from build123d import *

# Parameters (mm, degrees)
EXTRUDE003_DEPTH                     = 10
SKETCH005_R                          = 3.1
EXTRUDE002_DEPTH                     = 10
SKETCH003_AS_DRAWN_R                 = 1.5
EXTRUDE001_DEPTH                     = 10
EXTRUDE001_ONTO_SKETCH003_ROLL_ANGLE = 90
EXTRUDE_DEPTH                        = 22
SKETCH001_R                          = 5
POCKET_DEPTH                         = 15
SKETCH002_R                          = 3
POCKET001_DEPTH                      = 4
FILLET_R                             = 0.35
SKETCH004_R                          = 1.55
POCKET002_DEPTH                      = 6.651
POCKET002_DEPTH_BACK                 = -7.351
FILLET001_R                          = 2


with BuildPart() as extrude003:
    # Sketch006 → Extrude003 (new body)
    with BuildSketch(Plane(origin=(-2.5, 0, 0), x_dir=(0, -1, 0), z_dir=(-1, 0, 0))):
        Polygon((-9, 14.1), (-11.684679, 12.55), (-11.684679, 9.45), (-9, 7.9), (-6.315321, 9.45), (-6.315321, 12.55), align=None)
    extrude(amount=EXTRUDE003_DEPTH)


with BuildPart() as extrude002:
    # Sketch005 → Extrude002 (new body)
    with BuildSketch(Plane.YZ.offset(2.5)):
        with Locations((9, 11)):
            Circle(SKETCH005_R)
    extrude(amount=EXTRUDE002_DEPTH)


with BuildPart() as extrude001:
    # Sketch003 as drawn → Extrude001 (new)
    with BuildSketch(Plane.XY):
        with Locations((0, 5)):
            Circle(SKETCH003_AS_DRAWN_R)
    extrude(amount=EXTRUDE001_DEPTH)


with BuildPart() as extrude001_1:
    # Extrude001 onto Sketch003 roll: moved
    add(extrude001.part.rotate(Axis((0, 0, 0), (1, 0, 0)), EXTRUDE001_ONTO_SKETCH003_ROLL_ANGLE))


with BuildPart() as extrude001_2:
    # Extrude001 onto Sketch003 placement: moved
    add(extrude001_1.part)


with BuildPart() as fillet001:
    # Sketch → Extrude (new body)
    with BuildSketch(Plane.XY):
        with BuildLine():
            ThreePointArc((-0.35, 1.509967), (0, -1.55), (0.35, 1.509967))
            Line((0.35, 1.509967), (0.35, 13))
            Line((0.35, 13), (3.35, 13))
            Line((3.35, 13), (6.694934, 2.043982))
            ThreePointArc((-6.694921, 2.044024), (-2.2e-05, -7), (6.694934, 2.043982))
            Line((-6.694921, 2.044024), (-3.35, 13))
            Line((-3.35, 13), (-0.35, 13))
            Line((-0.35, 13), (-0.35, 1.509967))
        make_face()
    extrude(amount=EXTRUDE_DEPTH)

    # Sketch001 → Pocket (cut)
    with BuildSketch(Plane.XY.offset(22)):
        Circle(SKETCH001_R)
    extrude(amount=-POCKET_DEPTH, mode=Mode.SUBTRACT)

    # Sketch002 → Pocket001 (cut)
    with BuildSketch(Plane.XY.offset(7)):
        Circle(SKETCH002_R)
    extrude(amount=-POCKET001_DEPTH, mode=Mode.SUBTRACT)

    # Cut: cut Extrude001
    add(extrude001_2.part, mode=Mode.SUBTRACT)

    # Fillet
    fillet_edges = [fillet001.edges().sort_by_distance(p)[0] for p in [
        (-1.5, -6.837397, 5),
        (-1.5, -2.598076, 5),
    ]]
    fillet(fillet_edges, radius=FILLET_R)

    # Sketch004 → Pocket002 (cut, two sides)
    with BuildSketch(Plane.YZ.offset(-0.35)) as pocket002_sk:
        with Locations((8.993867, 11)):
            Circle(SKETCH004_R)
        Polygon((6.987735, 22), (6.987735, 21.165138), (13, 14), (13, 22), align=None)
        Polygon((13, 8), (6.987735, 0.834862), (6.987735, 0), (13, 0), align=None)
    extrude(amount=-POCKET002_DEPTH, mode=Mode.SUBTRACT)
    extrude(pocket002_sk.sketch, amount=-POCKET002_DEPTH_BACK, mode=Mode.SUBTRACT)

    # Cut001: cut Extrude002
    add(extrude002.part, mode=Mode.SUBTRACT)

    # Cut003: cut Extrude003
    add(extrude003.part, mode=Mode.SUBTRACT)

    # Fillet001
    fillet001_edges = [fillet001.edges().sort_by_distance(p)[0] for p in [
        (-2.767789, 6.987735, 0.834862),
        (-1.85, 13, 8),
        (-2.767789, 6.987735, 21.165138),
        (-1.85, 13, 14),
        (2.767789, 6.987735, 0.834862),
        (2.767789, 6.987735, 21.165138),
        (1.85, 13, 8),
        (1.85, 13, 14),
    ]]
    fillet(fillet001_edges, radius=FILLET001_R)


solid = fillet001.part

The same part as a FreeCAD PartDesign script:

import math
import FreeCAD as App
import Part
import Sketcher
from FreeCAD import Vector
Q = App.Units.Quantity


def edges_at(feature, points):
    """Names of the edges that pass closest to the given points."""
    edges = feature.Shape.Edges
    near = lambda p: min(range(len(edges)), key=lambda i: edges[i].distToShape(Part.Vertex(*p))[0])
    return sorted({f"Edge{near(p) + 1}" for p in points})

doc = App.newDocument("Part")
body = doc.addObject("PartDesign::Body", "Body")

# Sketch on YZ plane
sketch1 = doc.addObject("Sketcher::SketchObject", "Sketch")
body.addObject(sketch1)
sketch1.AttachmentSupport = (doc.YZ_Plane, [""])
sketch1.MapMode = "FlatFace"
sketch1.AttachmentOffset = App.Placement(Vector(0, 0, -2.5), App.Rotation())
sketch1.addGeometry([
    Part.LineSegment(Vector(9, 14.1, 0), Vector(11.684679, 12.55, 0)),  # 0
    Part.LineSegment(Vector(11.684679, 12.55, 0), Vector(11.684679, 9.45, 0)),  # 1
    Part.LineSegment(Vector(11.684679, 9.45, 0), Vector(9, 7.9, 0)),  # 2
    Part.LineSegment(Vector(9, 7.9, 0), Vector(6.315321, 9.45, 0)),  # 3
    Part.LineSegment(Vector(6.315321, 9.45, 0), Vector(6.315321, 12.55, 0)),  # 4
    Part.LineSegment(Vector(6.315321, 12.55, 0), Vector(9, 14.1, 0)),  # 5
], False)
sketch1.addConstraint([
    Sketcher.Constraint("Coincident", 0, 2, 1, 1),
    Sketcher.Constraint("Coincident", 1, 2, 2, 1),
    Sketcher.Constraint("Coincident", 2, 2, 3, 1),
    Sketcher.Constraint("Coincident", 3, 2, 4, 1),
    Sketcher.Constraint("Coincident", 4, 2, 5, 1),
    Sketcher.Constraint("Coincident", 5, 2, 0, 1),
    Sketcher.Constraint("Vertical", 1),
    Sketcher.Constraint("Vertical", 4),
    Sketcher.Constraint("Parallel", 0, 3),
    Sketcher.Constraint("Parallel", 2, 5),
    Sketcher.Constraint("Horizontal", 1, 2, 3, 2),
    Sketcher.Constraint("Horizontal", 0, 2, 4, 2),
    Sketcher.Constraint("Vertical", 2, 2, 5, 2),
    Sketcher.Constraint("Angle", 0, Q("-29.999998 deg")),
    Sketcher.Constraint("DistanceY", 1, 2, 1, 1, 3.1),
    Sketcher.Constraint("DistanceX", -1, 1, 2, 2, 9.0),
    Sketcher.Constraint("Distance", 0, 3.1),
    Sketcher.Constraint("DistanceY", -1, 1, 2, 2, 7.9),
])
pad1 = doc.addObject("PartDesign::Pad", "Pad")
body.addObject(pad1)
pad1.Profile = sketch1
pad1.Length = 10
pad1.Reversed = True
body2 = doc.addObject("PartDesign::Body", "Body001")

# Sketch on YZ plane
sketch2 = doc.addObject("Sketcher::SketchObject", "Sketch001")
body2.addObject(sketch2)
sketch2.AttachmentSupport = (doc.getObject("YZ_Plane001"), [""])
sketch2.MapMode = "FlatFace"
sketch2.AttachmentOffset = App.Placement(Vector(0, 0, 2.5), App.Rotation())
sketch2.addGeometry(Part.Circle(Vector(9, 11, 0), Vector(0, 0, 1), 3.1), False)
sketch2.addConstraint([
    Sketcher.Constraint("Diameter", 0, 6.2),
    Sketcher.Constraint("DistanceX", -1, 1, 0, 3, 9.0),
    Sketcher.Constraint("DistanceY", -1, 1, 0, 3, 11.0),
])
pad2 = doc.addObject("PartDesign::Pad", "Pad001")
body2.addObject(pad2)
pad2.Profile = sketch2
pad2.Length = 10
body3 = doc.addObject("PartDesign::Body", "Body002")

# Sketch on XY plane
sketch3 = doc.addObject("Sketcher::SketchObject", "Sketch002")
body3.addObject(sketch3)
sketch3.AttachmentSupport = (doc.getObject("XY_Plane002"), [""])
sketch3.MapMode = "FlatFace"
sketch3.addGeometry(Part.Circle(Vector(0, 5, 0), Vector(0, 0, 1), 1.5), False)
sketch3.addConstraint([
    Sketcher.Constraint("PointOnObject", 0, 3, -2),
    Sketcher.Constraint("Diameter", 0, 3.0),
    Sketcher.Constraint("DistanceY", -1, 1, 0, 3, 5.0),
])
pad3 = doc.addObject("PartDesign::Pad", "Pad002")
body3.addObject(pad3)
pad3.Profile = sketch3
pad3.Length = 10
body4 = doc.addObject("PartDesign::Body", "Body003")
doc.recompute()

body3.Placement = App.Placement(Vector(0, 0, 0), App.Rotation(Vector(1, 0, 0), 90))
boolean = doc.addObject("PartDesign::Boolean", "Boolean")
body4.addObject(boolean)
boolean.Type = "Fuse"
boolean.addObjects([body3])
body5 = doc.addObject("PartDesign::Body", "Body004")

# Sketch on XY plane
sketch4 = doc.addObject("Sketcher::SketchObject", "Sketch003")
body5.addObject(sketch4)
sketch4.AttachmentSupport = (doc.getObject("XY_Plane004"), [""])
sketch4.MapMode = "FlatFace"
sketch4.addGeometry([
    Part.ArcOfCircle(Part.Circle(Vector(0, 0, 0), Vector(0, 0, 1), 1.55), math.radians(103.050304), math.radians(436.949696)),  # 0
    Part.LineSegment(Vector(-0.35, 1.509967, 0), Vector(-0.35, 13, 0)),  # 1
    Part.LineSegment(Vector(-0.35, 13, 0), Vector(-3.35, 13, 0)),  # 2
    Part.LineSegment(Vector(-3.35, 13, 0), Vector(-6.694921, 2.044024, 0)),  # 3
    Part.ArcOfCircle(Part.Circle(Vector(0, 0, 0), Vector(0, 0, 1), 7), math.radians(163.022065), math.radians(376.977576)),  # 4
    Part.LineSegment(Vector(6.694934, 2.043982, 0), Vector(3.35, 13, 0)),  # 5
    Part.LineSegment(Vector(3.35, 13, 0), Vector(0.35, 13, 0)),  # 6
    Part.LineSegment(Vector(0.35, 13, 0), Vector(0.35, 1.509967, 0)),  # 7
], False)
sketch4.addConstraint([
    Sketcher.Constraint("Coincident", 0, 1, 1, 1),
    Sketcher.Constraint("Coincident", 1, 2, 2, 1),
    Sketcher.Constraint("Coincident", 2, 2, 3, 1),
    Sketcher.Constraint("Coincident", 3, 2, 4, 1),
    Sketcher.Constraint("Coincident", 4, 2, 5, 1),
    Sketcher.Constraint("Coincident", 5, 2, 6, 1),
    Sketcher.Constraint("Coincident", 6, 2, 7, 1),
    Sketcher.Constraint("Coincident", 7, 2, 0, 2),
    Sketcher.Constraint("Vertical", 1),
    Sketcher.Constraint("Horizontal", 2),
    Sketcher.Constraint("Horizontal", 6),
    Sketcher.Constraint("Vertical", 7),
    Sketcher.Constraint("Coincident", 0, 3, -1, 1),
    Sketcher.Constraint("Coincident", 4, 3, -1, 1),
    Sketcher.Constraint("Symmetric", 2, 2, 5, 2, -2),
    Sketcher.Constraint("Horizontal", 0, 1, 7, 2),
    Sketcher.Constraint("Radius", 4, 7.0),
    Sketcher.Constraint("DistanceX", 2, 2, 2, 1, 3.0),
    Sketcher.Constraint("Radius", 0, 1.55),
    Sketcher.Constraint("DistanceY", -1, 1, 1, 2, 13.0),
    Sketcher.Constraint("DistanceX", 1, 2, 5, 2, 3.7),
    Sketcher.Constraint("DistanceX", 3, 2, -1, 1, 6.694921),
    Sketcher.Constraint("DistanceY", 4, 3, 4, 2, 2.043982),
])
pad4 = doc.addObject("PartDesign::Pad", "Pad003")
body5.addObject(pad4)
pad4.Profile = sketch4
pad4.Length = 22

# Sketch on XY plane
sketch5 = doc.addObject("Sketcher::SketchObject", "Sketch004")
body5.addObject(sketch5)
sketch5.AttachmentSupport = (doc.getObject("XY_Plane004"), [""])
sketch5.MapMode = "FlatFace"
sketch5.AttachmentOffset = App.Placement(Vector(0, 0, 22), App.Rotation())
sketch5.addGeometry(Part.Circle(Vector(0, 0, 0), Vector(0, 0, 1), 5), False)
sketch5.addConstraint([
    Sketcher.Constraint("Coincident", 0, 3, -1, 1),
    Sketcher.Constraint("Diameter", 0, 10.0),
])
pocket1 = doc.addObject("PartDesign::Pocket", "Pocket")
body5.addObject(pocket1)
pocket1.Profile = sketch5
pocket1.Length = 15

# Sketch on XY plane
sketch6 = doc.addObject("Sketcher::SketchObject", "Sketch005")
body5.addObject(sketch6)
sketch6.AttachmentSupport = (doc.getObject("XY_Plane004"), [""])
sketch6.MapMode = "FlatFace"
sketch6.AttachmentOffset = App.Placement(Vector(0, 0, 7), App.Rotation())
sketch6.addGeometry(Part.Circle(Vector(0, 0, 0), Vector(0, 0, 1), 3), False)
sketch6.addConstraint([
    Sketcher.Constraint("Coincident", 0, 3, -1, 1),
    Sketcher.Constraint("Diameter", 0, 6.0),
])
pocket2 = doc.addObject("PartDesign::Pocket", "Pocket001")
body5.addObject(pocket2)
pocket2.Profile = sketch6
pocket2.Length = 4
doc.recompute()

boolean2 = doc.addObject("PartDesign::Boolean", "Boolean001")
body5.addObject(boolean2)
boolean2.Type = "Cut"
boolean2.addObjects([body4])
doc.recompute()

fillet = doc.addObject("PartDesign::Fillet", "Fillet")
body5.addObject(fillet)
fillet.Base = (boolean2, edges_at(boolean2, [(-1.5, -6.837, 5), (-1.5, -2.598, 5)]))
fillet.Radius = 0.35

# Sketch on YZ plane
sketch7 = doc.addObject("Sketcher::SketchObject", "Sketch006")
body5.addObject(sketch7)
sketch7.AttachmentSupport = (doc.getObject("YZ_Plane004"), [""])
sketch7.MapMode = "FlatFace"
sketch7.AttachmentOffset = App.Placement(Vector(0, 0, -0.35), App.Rotation())
sketch7.addGeometry([
    Part.Circle(Vector(8.993867, 11, 0), Vector(0, 0, 1), 1.55),  # 0
    Part.LineSegment(Vector(6.987735, 22, 0), Vector(6.987735, 21.165138, 0)),  # 1
    Part.LineSegment(Vector(6.987735, 21.165138, 0), Vector(13, 14, 0)),  # 2
    Part.LineSegment(Vector(13, 14, 0), Vector(13, 22, 0)),  # 3
    Part.LineSegment(Vector(13, 22, 0), Vector(6.987735, 22, 0)),  # 4
    Part.LineSegment(Vector(13, 8, 0), Vector(6.987735, 0.834862, 0)),  # 5
    Part.LineSegment(Vector(6.987735, 0.834862, 0), Vector(6.987735, 0, 0)),  # 6
    Part.LineSegment(Vector(6.987735, 0, 0), Vector(13, 0, 0)),  # 7
    Part.LineSegment(Vector(13, 0, 0), Vector(13, 8, 0)),  # 8
], False)
sketch7.addConstraint([
    Sketcher.Constraint("Coincident", 1, 2, 2, 1),
    Sketcher.Constraint("Coincident", 2, 2, 3, 1),
    Sketcher.Constraint("Coincident", 3, 2, 4, 1),
    Sketcher.Constraint("Coincident", 4, 2, 1, 1),
    Sketcher.Constraint("Coincident", 5, 2, 6, 1),
    Sketcher.Constraint("Coincident", 6, 2, 7, 1),
    Sketcher.Constraint("Coincident", 7, 2, 8, 1),
    Sketcher.Constraint("Coincident", 8, 2, 5, 1),
    Sketcher.Constraint("Vertical", 1),
    Sketcher.Constraint("Vertical", 3),
    Sketcher.Constraint("Horizontal", 4),
    Sketcher.Constraint("Vertical", 6),
    Sketcher.Constraint("Horizontal", 7),
    Sketcher.Constraint("Vertical", 8),
    Sketcher.Constraint("PointOnObject", 6, 2, -1),
    Sketcher.Constraint("Vertical", 4, 2, 5, 2),
    Sketcher.Constraint("Vertical", 3, 2, 7, 2),
    Sketcher.Constraint("Equal", 1, 6),
    Sketcher.Constraint("Equal", 3, 8),
    Sketcher.Constraint("Diameter", 0, 3.1),
    Sketcher.Constraint("DistanceY", 3, 1, 3, 2, 8.0),
    Sketcher.Constraint("Angle", 2, Q("-49.999998 deg")),
    Sketcher.Constraint("DistanceY", -1, 1, 0, 3, 11.0),
    Sketcher.Constraint("DistanceX", -1, 1, 2, 2, 13.0),
    Sketcher.Constraint("DistanceY", -1, 1, 2, 2, 14.0),
    Sketcher.Constraint("DistanceY", 6, 2, 6, 1, 0.834862),
    Sketcher.Constraint("DistanceX", 1, 2, 0, 3, 2.006132),
])
pocket3 = doc.addObject("PartDesign::Pocket", "Pocket002")
body5.addObject(pocket3)
pocket3.Profile = sketch7
pocket3.Type = "ThroughAll"
pocket3.Midplane = True
doc.recompute()

boolean3 = doc.addObject("PartDesign::Boolean", "Boolean002")
body5.addObject(boolean3)
boolean3.Type = "Cut"
boolean3.addObjects([body2])
doc.recompute()

boolean4 = doc.addObject("PartDesign::Boolean", "Boolean003")
body5.addObject(boolean4)
boolean4.Type = "Cut"
boolean4.addObjects([body])
doc.recompute()

fillet2 = doc.addObject("PartDesign::Fillet", "Fillet001")
body5.addObject(fillet2)
fillet2.Base = (boolean4, edges_at(boolean4, [
    (-2.768, 6.988, 0.835),
    (-1.85, 13, 8),
    (-2.768, 6.988, 21.165),
    (-1.85, 13, 14),
    (2.768, 6.988, 0.835),
    (2.768, 6.988, 21.165),
    (1.85, 13, 8),
    (1.85, 13, 14),
]))
fillet2.Radius = 2

doc.recompute()
